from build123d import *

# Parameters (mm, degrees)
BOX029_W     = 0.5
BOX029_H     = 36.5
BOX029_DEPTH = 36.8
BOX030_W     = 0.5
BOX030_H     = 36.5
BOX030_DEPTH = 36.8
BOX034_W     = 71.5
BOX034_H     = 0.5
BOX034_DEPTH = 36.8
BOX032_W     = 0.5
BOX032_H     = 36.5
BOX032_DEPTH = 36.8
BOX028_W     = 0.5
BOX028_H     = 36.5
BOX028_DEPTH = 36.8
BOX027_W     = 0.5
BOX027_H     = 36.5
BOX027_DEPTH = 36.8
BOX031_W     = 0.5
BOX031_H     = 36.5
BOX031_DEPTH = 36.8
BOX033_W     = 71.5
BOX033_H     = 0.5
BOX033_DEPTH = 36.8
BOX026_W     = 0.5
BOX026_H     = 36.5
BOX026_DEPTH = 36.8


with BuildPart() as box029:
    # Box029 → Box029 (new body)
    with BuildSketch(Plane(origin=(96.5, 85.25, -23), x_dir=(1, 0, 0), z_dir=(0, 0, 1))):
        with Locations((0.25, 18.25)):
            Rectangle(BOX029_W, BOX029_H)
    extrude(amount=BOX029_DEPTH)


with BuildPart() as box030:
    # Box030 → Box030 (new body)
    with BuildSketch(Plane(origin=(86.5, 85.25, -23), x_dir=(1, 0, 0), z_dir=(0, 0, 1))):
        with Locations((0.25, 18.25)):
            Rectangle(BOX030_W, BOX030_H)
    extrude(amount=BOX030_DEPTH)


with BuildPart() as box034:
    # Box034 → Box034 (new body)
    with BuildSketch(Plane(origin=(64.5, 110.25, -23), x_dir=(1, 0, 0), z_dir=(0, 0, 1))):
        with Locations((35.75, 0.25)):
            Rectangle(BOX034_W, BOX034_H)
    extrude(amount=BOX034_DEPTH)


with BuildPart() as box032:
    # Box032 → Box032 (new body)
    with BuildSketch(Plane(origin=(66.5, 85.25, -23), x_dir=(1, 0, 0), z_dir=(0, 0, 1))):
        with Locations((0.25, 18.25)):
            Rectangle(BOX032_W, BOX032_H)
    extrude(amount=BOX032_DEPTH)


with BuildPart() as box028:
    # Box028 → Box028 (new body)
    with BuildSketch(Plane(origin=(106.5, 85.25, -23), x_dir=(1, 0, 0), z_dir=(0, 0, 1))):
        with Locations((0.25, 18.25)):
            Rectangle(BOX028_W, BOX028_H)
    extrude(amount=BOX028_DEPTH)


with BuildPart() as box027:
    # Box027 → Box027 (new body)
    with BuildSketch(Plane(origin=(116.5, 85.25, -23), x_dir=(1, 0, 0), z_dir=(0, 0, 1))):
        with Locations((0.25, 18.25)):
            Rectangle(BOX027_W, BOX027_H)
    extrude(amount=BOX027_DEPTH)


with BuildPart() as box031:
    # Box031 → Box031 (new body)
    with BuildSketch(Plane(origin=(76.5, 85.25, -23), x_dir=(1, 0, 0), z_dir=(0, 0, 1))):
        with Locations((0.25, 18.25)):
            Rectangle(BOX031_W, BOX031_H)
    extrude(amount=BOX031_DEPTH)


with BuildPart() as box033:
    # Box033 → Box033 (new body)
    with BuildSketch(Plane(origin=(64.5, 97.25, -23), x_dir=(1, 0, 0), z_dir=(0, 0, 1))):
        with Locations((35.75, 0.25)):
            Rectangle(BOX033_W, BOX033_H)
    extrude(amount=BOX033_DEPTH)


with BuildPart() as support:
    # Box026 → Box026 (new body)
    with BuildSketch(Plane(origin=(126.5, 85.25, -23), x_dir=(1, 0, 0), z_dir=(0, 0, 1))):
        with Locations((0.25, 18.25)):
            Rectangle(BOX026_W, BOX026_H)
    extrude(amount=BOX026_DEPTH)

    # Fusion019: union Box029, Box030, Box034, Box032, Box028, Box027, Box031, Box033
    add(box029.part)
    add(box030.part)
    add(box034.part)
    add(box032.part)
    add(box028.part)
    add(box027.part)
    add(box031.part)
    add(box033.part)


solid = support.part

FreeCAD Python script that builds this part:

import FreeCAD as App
import Part
import Sketcher
from FreeCAD import Vector
Q = App.Units.Quantity


def add_polygon(sketch, points):
    """Adds a closed chain of lines whose ends are joined by coincident constraints."""
    first, n = sketch.GeometryCount, len(points)
    for a, b in zip(points, points[1:] + points[:1]):
        sketch.addGeometry(Part.LineSegment(App.Vector(*a, 0), App.Vector(*b, 0)), False)
    for i in range(n):
        sketch.addConstraint(Sketcher.Constraint("Coincident", first + i, 2, first + (i + 1) % n, 1))

doc = App.newDocument("Part")
params = doc.addObject("Spreadsheet::Sheet", "Params")
for row, (alias, value) in enumerate([
    ("sketch1_width", "0.5 mm"),
    ("sketch1_height", "36.5 mm"),
    ("pad1_length", "36.8 mm"),
    ("sketch2_width", "0.5 mm"),
    ("sketch2_height", "36.5 mm"),
    ("pad2_length", "36.8 mm"),
    ("sketch3_width", "71.5 mm"),
    ("sketch3_height", "0.5 mm"),
    ("pad3_length", "36.8 mm"),
    ("sketch4_width", "0.5 mm"),
    ("sketch4_height", "36.5 mm"),
    ("pad4_length", "36.8 mm"),
    ("sketch5_width", "0.5 mm"),
    ("sketch5_height", "36.5 mm"),
    ("pad5_length", "36.8 mm"),
    ("sketch6_width", "0.5 mm"),
    ("sketch6_height", "36.5 mm"),
    ("pad6_length", "36.8 mm"),
    ("sketch7_width", "0.5 mm"),
    ("sketch7_height", "36.5 mm"),
    ("pad7_length", "36.8 mm"),
    ("sketch8_width", "71.5 mm"),
    ("sketch8_height", "0.5 mm"),
    ("pad8_length", "36.8 mm"),
    ("sketch9_width", "0.5 mm"),
    ("sketch9_height", "36.5 mm"),
    ("pad9_length", "36.8 mm"),
], start=1):
    params.set(f"A{row}", alias)
    params.set(f"B{row}", "=" + value)
    params.setAlias(f"B{row}", alias)

body = doc.addObject("PartDesign::Body", "Body")

sketch1 = doc.addObject("Sketcher::SketchObject", "Sketch")
body.addObject(sketch1)
sketch1.AttachmentSupport = (doc.XY_Plane, [""])
sketch1.MapMode = "FlatFace"
sketch1.AttachmentOffset = App.Placement(Vector(0, 0, -23), App.Rotation())
add_polygon(sketch1, [(96.5, 121.75), (96.5, 85.25), (97, 85.25), (97, 121.75)])
sketch1.addConstraint(Sketcher.Constraint("Vertical", 0))
sketch1.addConstraint(Sketcher.Constraint("Horizontal", 1))
sketch1.addConstraint(Sketcher.Constraint("Vertical", 2))
sketch1.addConstraint(Sketcher.Constraint("Horizontal", 3))
sketch1.addConstraint(Sketcher.Constraint("DistanceX", 1, 1, 1, 2, Q("0.5 mm")))
sketch1.addConstraint(Sketcher.Constraint("DistanceY", 0, 2, 0, 1, Q("36.5 mm")))
sketch1.addConstraint(Sketcher.Constraint("DistanceX", -1, 1, 1, 2, Q("97 mm")))
sketch1.addConstraint(Sketcher.Constraint("DistanceY", -1, 1, 0, 2, Q("85.25 mm")))
sketch1.setExpression("Constraints[8]", "Params.sketch1_width")
sketch1.setExpression("Constraints[9]", "Params.sketch1_height")
pad1 = doc.addObject("PartDesign::Pad", "Pad")
body.addObject(pad1)
pad1.Profile = sketch1
pad1.setExpression("Length", "Params.pad1_length")
body2 = doc.addObject("PartDesign::Body", "Body001")

sketch2 = doc.addObject("Sketcher::SketchObject", "Sketch001")
body2.addObject(sketch2)
sketch2.AttachmentSupport = (doc.getObject("XY_Plane001"), [""])
sketch2.MapMode = "FlatFace"
sketch2.AttachmentOffset = App.Placement(Vector(0, 0, -23), App.Rotation())
add_polygon(sketch2, [(86.5, 121.75), (86.5, 85.25), (87, 85.25), (87, 121.75)])
sketch2.addConstraint(Sketcher.Constraint("Vertical", 0))
sketch2.addConstraint(Sketcher.Constraint("Horizontal", 1))
sketch2.addConstraint(Sketcher.Constraint("Vertical", 2))
sketch2.addConstraint(Sketcher.Constraint("Horizontal", 3))
sketch2.addConstraint(Sketcher.Constraint("DistanceX", 1, 1, 1, 2, Q("0.5 mm")))
sketch2.addConstraint(Sketcher.Constraint("DistanceY", 0, 2, 0, 1, Q("36.5 mm")))
sketch2.addConstraint(Sketcher.Constraint("DistanceX", -1, 1, 1, 2, Q("87 mm")))
sketch2.addConstraint(Sketcher.Constraint("DistanceY", -1, 1, 0, 2, Q("85.25 mm")))
sketch2.setExpression("Constraints[8]", "Params.sketch2_width")
sketch2.setExpression("Constraints[9]", "Params.sketch2_height")
pad2 = doc.addObject("PartDesign::Pad", "Pad001")
body2.addObject(pad2)
pad2.Profile = sketch2
pad2.setExpression("Length", "Params.pad2_length")
body3 = doc.addObject("PartDesign::Body", "Body002")

sketch3 = doc.addObject("Sketcher::SketchObject", "Sketch002")
body3.addObject(sketch3)
sketch3.AttachmentSupport = (doc.getObject("XY_Plane002"), [""])
sketch3.MapMode = "FlatFace"
sketch3.AttachmentOffset = App.Placement(Vector(0, 0, -23), App.Rotation())
add_polygon(sketch3, [(64.5, 110.75), (64.5, 110.25), (136, 110.25), (136, 110.75)])
sketch3.addConstraint(Sketcher.Constraint("Vertical", 0))
sketch3.addConstraint(Sketcher.Constraint("Horizontal", 1))
sketch3.addConstraint(Sketcher.Constraint("Vertical", 2))
sketch3.addConstraint(Sketcher.Constraint("Horizontal", 3))
sketch3.addConstraint(Sketcher.Constraint("DistanceX", 1, 1, 1, 2, Q("71.5 mm")))
sketch3.addConstraint(Sketcher.Constraint("DistanceY", 0, 2, 0, 1, Q("0.5 mm")))
sketch3.addConstraint(Sketcher.Constraint("DistanceX", -1, 1, 1, 2, Q("136 mm")))
sketch3.addConstraint(Sketcher.Constraint("DistanceY", -1, 1, 0, 2, Q("110.25 mm")))
sketch3.setExpression("Constraints[8]", "Params.sketch3_width")
sketch3.setExpression("Constraints[9]", "Params.sketch3_height")
pad3 = doc.addObject("PartDesign::Pad", "Pad002")
body3.addObject(pad3)
pad3.Profile = sketch3
pad3.setExpression("Length", "Params.pad3_length")
body4 = doc.addObject("PartDesign::Body", "Body003")

sketch4 = doc.addObject("Sketcher::SketchObject", "Sketch003")
body4.addObject(sketch4)
sketch4.AttachmentSupport = (doc.getObject("XY_Plane003"), [""])
sketch4.MapMode = "FlatFace"
sketch4.AttachmentOffset = App.Placement(Vector(0, 0, -23), App.Rotation())
add_polygon(sketch4, [(66.5, 121.75), (66.5, 85.25), (67, 85.25), (67, 121.75)])
sketch4.addConstraint(Sketcher.Constraint("Vertical", 0))
sketch4.addConstraint(Sketcher.Constraint("Horizontal", 1))
sketch4.addConstraint(Sketcher.Constraint("Vertical", 2))
sketch4.addConstraint(Sketcher.Constraint("Horizontal", 3))
sketch4.addConstraint(Sketcher.Constraint("DistanceX", 1, 1, 1, 2, Q("0.5 mm")))
sketch4.addConstraint(Sketcher.Constraint("DistanceY", 0, 2, 0, 1, Q("36.5 mm")))
sketch4.addConstraint(Sketcher.Constraint("DistanceX", -1, 1, 1, 2, Q("67 mm")))
sketch4.addConstraint(Sketcher.Constraint("DistanceY", -1, 1, 0, 2, Q("85.25 mm")))
sketch4.setExpression("Constraints[8]", "Params.sketch4_width")
sketch4.setExpression("Constraints[9]", "Params.sketch4_height")
pad4 = doc.addObject("PartDesign::Pad", "Pad003")
body4.addObject(pad4)
pad4.Profile = sketch4
pad4.setExpression("Length", "Params.pad4_length")
body5 = doc.addObject("PartDesign::Body", "Body004")

sketch5 = doc.addObject("Sketcher::SketchObject", "Sketch004")
body5.addObject(sketch5)
sketch5.AttachmentSupport = (doc.getObject("XY_Plane004"), [""])
sketch5.MapMode = "FlatFace"
sketch5.AttachmentOffset = App.Placement(Vector(0, 0, -23), App.Rotation())
add_polygon(sketch5, [(106.5, 121.75), (106.5, 85.25), (107, 85.25), (107, 121.75)])
sketch5.addConstraint(Sketcher.Constraint("Vertical", 0))
sketch5.addConstraint(Sketcher.Constraint("Horizontal", 1))
sketch5.addConstraint(Sketcher.Constraint("Vertical", 2))
sketch5.addConstraint(Sketcher.Constraint("Horizontal", 3))
sketch5.addConstraint(Sketcher.Constraint("DistanceX", 1, 1, 1, 2, Q("0.5 mm")))
sketch5.addConstraint(Sketcher.Constraint("DistanceY", 0, 2, 0, 1, Q("36.5 mm")))
sketch5.addConstraint(Sketcher.Constraint("DistanceX", -1, 1, 1, 2, Q("107 mm")))
sketch5.addConstraint(Sketcher.Constraint("DistanceY", -1, 1, 0, 2, Q("85.25 mm")))
sketch5.setExpression("Constraints[8]", "Params.sketch5_width")
sketch5.setExpression("Constraints[9]", "Params.sketch5_height")
pad5 = doc.addObject("PartDesign::Pad", "Pad004")
body5.addObject(pad5)
pad5.Profile = sketch5
pad5.setExpression("Length", "Params.pad5_length")
body6 = doc.addObject("PartDesign::Body", "Body005")

sketch6 = doc.addObject("Sketcher::SketchObject", "Sketch005")
body6.addObject(sketch6)
sketch6.AttachmentSupport = (doc.getObject("XY_Plane005"), [""])
sketch6.MapMode = "FlatFace"
sketch6.AttachmentOffset = App.Placement(Vector(0, 0, -23), App.Rotation())
add_polygon(sketch6, [(116.5, 121.75), (116.5, 85.25), (117, 85.25), (117, 121.75)])
sketch6.addConstraint(Sketcher.Constraint("Vertical", 0))
sketch6.addConstraint(Sketcher.Constraint("Horizontal", 1))
sketch6.addConstraint(Sketcher.Constraint("Vertical", 2))
sketch6.addConstraint(Sketcher.Constraint("Horizontal", 3))
sketch6.addConstraint(Sketcher.Constraint("DistanceX", 1, 1, 1, 2, Q("0.5 mm")))
sketch6.addConstraint(Sketcher.Constraint("DistanceY", 0, 2, 0, 1, Q("36.5 mm")))
sketch6.addConstraint(Sketcher.Constraint("DistanceX", -1, 1, 1, 2, Q("117 mm")))
sketch6.addConstraint(Sketcher.Constraint("DistanceY", -1, 1, 0, 2, Q("85.25 mm")))
sketch6.setExpression("Constraints[8]", "Params.sketch6_width")
sketch6.setExpression("Constraints[9]", "Params.sketch6_height")
pad6 = doc.addObject("PartDesign::Pad", "Pad005")
body6.addObject(pad6)
pad6.Profile = sketch6
pad6.setExpression("Length", "Params.pad6_length")
body7 = doc.addObject("PartDesign::Body", "Body006")

sketch7 = doc.addObject("Sketcher::SketchObject", "Sketch006")
body7.addObject(sketch7)
sketch7.AttachmentSupport = (doc.getObject("XY_Plane006"), [""])
sketch7.MapMode = "FlatFace"
sketch7.AttachmentOffset = App.Placement(Vector(0, 0, -23), App.Rotation())
add_polygon(sketch7, [(76.5, 121.75), (76.5, 85.25), (77, 85.25), (77, 121.75)])
sketch7.addConstraint(Sketcher.Constraint("Vertical", 0))
sketch7.addConstraint(Sketcher.Constraint("Horizontal", 1))
sketch7.addConstraint(Sketcher.Constraint("Vertical", 2))
sketch7.addConstraint(Sketcher.Constraint("Horizontal", 3))
sketch7.addConstraint(Sketcher.Constraint("DistanceX", 1, 1, 1, 2, Q("0.5 mm")))
sketch7.addConstraint(Sketcher.Constraint("DistanceY", 0, 2, 0, 1, Q("36.5 mm")))
sketch7.addConstraint(Sketcher.Constraint("DistanceX", -1, 1, 1, 2, Q("77 mm")))
sketch7.addConstraint(Sketcher.Constraint("DistanceY", -1, 1, 0, 2, Q("85.25 mm")))
sketch7.setExpression("Constraints[8]", "Params.sketch7_width")
sketch7.setExpression("Constraints[9]", "Params.sketch7_height")
pad7 = doc.addObject("PartDesign::Pad", "Pad006")
body7.addObject(pad7)
pad7.Profile = sketch7
pad7.setExpression("Length", "Params.pad7_length")
body8 = doc.addObject("PartDesign::Body", "Body007")

sketch8 = doc.addObject("Sketcher::SketchObject", "Sketch007")
body8.addObject(sketch8)
sketch8.AttachmentSupport = (doc.getObject("XY_Plane007"), [""])
sketch8.MapMode = "FlatFace"
sketch8.AttachmentOffset = App.Placement(Vector(0, 0, -23), App.Rotation())
add_polygon(sketch8, [(64.5, 97.75), (64.5, 97.25), (136, 97.25), (136, 97.75)])
sketch8.addConstraint(Sketcher.Constraint("Vertical", 0))
sketch8.addConstraint(Sketcher.Constraint("Horizontal", 1))
sketch8.addConstraint(Sketcher.Constraint("Vertical", 2))
sketch8.addConstraint(Sketcher.Constraint("Horizontal", 3))
sketch8.addConstraint(Sketcher.Constraint("DistanceX", 1, 1, 1, 2, Q("71.5 mm")))
sketch8.addConstraint(Sketcher.Constraint("DistanceY", 0, 2, 0, 1, Q("0.5 mm")))
sketch8.addConstraint(Sketcher.Constraint("DistanceX", -1, 1, 1, 2, Q("136 mm")))
sketch8.addConstraint(Sketcher.Constraint("DistanceY", -1, 1, 0, 2, Q("97.25 mm")))
sketch8.setExpression("Constraints[8]", "Params.sketch8_width")
sketch8.setExpression("Constraints[9]", "Params.sketch8_height")
pad8 = doc.addObject("PartDesign::Pad", "Pad007")
body8.addObject(pad8)
pad8.Profile = sketch8
pad8.setExpression("Length", "Params.pad8_length")
body9 = doc.addObject("PartDesign::Body", "Body008")
body9.AllowCompound = True

sketch9 = doc.addObject("Sketcher::SketchObject", "Sketch008")
body9.addObject(sketch9)
sketch9.AttachmentSupport = (doc.getObject("XY_Plane008"), [""])
sketch9.MapMode = "FlatFace"
sketch9.AttachmentOffset = App.Placement(Vector(0, 0, -23), App.Rotation())
add_polygon(sketch9, [(126.5, 121.75), (126.5, 85.25), (127, 85.25), (127, 121.75)])
sketch9.addConstraint(Sketcher.Constraint("Vertical", 0))
sketch9.addConstraint(Sketcher.Constraint("Horizontal", 1))
sketch9.addConstraint(Sketcher.Constraint("Vertical", 2))
sketch9.addConstraint(Sketcher.Constraint("Horizontal", 3))
sketch9.addConstraint(Sketcher.Constraint("DistanceX", 1, 1, 1, 2, Q("0.5 mm")))
sketch9.addConstraint(Sketcher.Constraint("DistanceY", 0, 2, 0, 1, Q("36.5 mm")))
sketch9.addConstraint(Sketcher.Constraint("DistanceX", -1, 1, 1, 2, Q("127 mm")))
sketch9.addConstraint(Sketcher.Constraint("DistanceY", -1, 1, 0, 2, Q("85.25 mm")))
sketch9.setExpression("Constraints[8]", "Params.sketch9_width")
sketch9.setExpression("Constraints[9]", "Params.sketch9_height")
pad9 = doc.addObject("PartDesign::Pad", "Pad008")
body9.addObject(pad9)
pad9.Profile = sketch9
pad9.setExpression("Length", "Params.pad9_length")
doc.recompute()

boolean = doc.addObject("PartDesign::Boolean", "Boolean")
body9.addObject(boolean)
boolean.Type = "Fuse"
boolean.addObjects([body])
doc.recompute()

boolean2 = doc.addObject("PartDesign::Boolean", "Boolean001")
body9.addObject(boolean2)
boolean2.Type = "Fuse"
boolean2.addObjects([body2])
doc.recompute()

boolean3 = doc.addObject("PartDesign::Boolean", "Boolean002")
body9.addObject(boolean3)
boolean3.Type = "Fuse"
boolean3.addObjects([body3])
doc.recompute()

boolean4 = doc.addObject("PartDesign::Boolean", "Boolean003")
body9.addObject(boolean4)
boolean4.Type = "Fuse"
boolean4.addObjects([body4])
doc.recompute()

boolean5 = doc.addObject("PartDesign::Boolean", "Boolean004")
body9.addObject(boolean5)
boolean5.Type = "Fuse"
boolean5.addObjects([body5])
doc.recompute()

boolean6 = doc.addObject("PartDesign::Boolean", "Boolean005")
body9.addObject(boolean6)
boolean6.Type = "Fuse"
boolean6.addObjects([body6])
doc.recompute()

boolean7 = doc.addObject("PartDesign::Boolean", "Boolean006")
body9.addObject(boolean7)
boolean7.Type = "Fuse"
boolean7.addObjects([body7])
doc.recompute()

boolean8 = doc.addObject("PartDesign::Boolean", "Boolean007")
body9.addObject(boolean8)
boolean8.Type = "Fuse"
boolean8.addObjects([body8])

doc.recompute()
